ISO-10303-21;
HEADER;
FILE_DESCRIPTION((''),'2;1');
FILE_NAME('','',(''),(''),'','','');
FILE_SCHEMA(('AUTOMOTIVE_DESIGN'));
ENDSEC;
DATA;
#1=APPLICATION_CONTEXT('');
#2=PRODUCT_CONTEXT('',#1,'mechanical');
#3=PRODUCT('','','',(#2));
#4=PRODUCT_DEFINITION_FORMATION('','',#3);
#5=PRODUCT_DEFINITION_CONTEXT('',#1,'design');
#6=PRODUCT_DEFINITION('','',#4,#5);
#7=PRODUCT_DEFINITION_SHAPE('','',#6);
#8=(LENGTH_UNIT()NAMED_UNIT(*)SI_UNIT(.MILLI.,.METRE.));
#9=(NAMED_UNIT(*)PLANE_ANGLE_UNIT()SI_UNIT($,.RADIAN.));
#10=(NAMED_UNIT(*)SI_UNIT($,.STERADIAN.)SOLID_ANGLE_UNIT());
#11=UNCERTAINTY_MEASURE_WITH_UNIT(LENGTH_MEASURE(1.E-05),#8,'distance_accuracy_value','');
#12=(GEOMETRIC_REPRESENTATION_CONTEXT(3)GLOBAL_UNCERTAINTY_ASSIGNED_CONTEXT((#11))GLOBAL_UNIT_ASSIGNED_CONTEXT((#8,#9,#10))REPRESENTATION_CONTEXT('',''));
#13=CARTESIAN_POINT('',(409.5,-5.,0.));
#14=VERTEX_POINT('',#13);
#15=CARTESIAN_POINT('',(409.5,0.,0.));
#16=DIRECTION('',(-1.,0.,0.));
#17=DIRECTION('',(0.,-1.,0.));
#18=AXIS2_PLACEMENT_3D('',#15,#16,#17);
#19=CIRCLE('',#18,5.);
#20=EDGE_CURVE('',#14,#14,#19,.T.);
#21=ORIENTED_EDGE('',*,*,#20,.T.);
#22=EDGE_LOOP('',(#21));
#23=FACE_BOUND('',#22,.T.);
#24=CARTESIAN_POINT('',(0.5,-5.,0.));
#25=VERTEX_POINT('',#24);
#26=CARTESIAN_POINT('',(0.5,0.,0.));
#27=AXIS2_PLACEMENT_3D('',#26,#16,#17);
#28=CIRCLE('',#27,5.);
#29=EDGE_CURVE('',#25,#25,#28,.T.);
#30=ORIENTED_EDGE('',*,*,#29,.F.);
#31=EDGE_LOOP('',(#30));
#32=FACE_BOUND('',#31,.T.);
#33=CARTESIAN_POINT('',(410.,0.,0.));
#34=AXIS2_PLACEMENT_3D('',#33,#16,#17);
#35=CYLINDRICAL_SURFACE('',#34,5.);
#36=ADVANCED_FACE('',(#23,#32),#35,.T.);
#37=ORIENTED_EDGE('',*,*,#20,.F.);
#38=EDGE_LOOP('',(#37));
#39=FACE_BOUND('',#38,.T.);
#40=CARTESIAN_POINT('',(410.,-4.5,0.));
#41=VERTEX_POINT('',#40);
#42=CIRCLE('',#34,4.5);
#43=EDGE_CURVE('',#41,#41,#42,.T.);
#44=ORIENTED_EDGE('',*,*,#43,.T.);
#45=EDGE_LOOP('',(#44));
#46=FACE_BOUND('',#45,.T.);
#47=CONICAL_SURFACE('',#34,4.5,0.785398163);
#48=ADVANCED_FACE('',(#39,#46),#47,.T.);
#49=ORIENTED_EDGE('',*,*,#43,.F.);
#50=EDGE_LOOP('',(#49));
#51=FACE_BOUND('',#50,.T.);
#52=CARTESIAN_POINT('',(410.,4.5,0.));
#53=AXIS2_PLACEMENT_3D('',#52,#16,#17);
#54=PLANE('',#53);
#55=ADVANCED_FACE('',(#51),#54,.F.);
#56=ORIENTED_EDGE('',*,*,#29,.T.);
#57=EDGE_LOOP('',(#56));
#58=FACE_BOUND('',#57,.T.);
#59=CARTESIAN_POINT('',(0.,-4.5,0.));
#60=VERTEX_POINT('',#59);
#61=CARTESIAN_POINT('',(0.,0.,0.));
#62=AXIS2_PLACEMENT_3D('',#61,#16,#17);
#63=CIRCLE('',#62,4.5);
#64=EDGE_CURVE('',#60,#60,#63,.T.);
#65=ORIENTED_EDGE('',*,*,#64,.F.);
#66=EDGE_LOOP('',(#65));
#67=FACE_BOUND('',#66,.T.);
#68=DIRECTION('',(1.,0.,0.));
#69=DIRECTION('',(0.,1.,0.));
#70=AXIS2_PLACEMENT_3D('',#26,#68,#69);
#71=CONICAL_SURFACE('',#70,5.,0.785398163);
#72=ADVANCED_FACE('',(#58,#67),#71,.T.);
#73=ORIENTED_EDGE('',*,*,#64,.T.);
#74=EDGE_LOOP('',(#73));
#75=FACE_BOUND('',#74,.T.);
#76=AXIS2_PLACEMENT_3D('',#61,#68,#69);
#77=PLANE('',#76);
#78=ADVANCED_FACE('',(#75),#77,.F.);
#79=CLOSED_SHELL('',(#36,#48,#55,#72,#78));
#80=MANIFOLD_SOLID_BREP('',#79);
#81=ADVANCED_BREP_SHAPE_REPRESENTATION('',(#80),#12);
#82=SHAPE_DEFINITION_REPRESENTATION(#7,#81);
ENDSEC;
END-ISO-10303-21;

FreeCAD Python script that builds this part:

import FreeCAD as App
import Part
import Sketcher

doc = App.newDocument("Part")
body = doc.addObject("PartDesign::Body", "Body")

sketch1 = body.newObject("Sketcher::SketchObject", "Sketch")
sketch1.AttachmentSupport = (doc.getObject("XY_Plane"), [""])
sketch1.MapMode = "FlatFace"
sketch1.addGeometry(Part.LineSegment(App.Vector(0, 4.5, 0), App.Vector(0, 0, 0)), False)
sketch1.addGeometry(Part.LineSegment(App.Vector(0, 0, 0), App.Vector(410, 0, 0)), False)
sketch1.addGeometry(Part.LineSegment(App.Vector(410, 0, 0), App.Vector(410, 4.5, 0)), False)
sketch1.addGeometry(Part.LineSegment(App.Vector(410, 4.5, 0), App.Vector(409.5, 5, 0)), False)
sketch1.addGeometry(Part.LineSegment(App.Vector(409.5, 5, 0), App.Vector(0.5, 5, 0)), False)
sketch1.addGeometry(Part.LineSegment(App.Vector(0.5, 5, 0), App.Vector(0, 4.5, 0)), False)
sketch1.addConstraint(Sketcher.Constraint("Coincident", 0, 2, 1, 1))
sketch1.addConstraint(Sketcher.Constraint("Coincident", 1, 2, 2, 1))
sketch1.addConstraint(Sketcher.Constraint("Coincident", 2, 2, 3, 1))
sketch1.addConstraint(Sketcher.Constraint("Coincident", 3, 2, 4, 1))
sketch1.addConstraint(Sketcher.Constraint("Coincident", 4, 2, 5, 1))
sketch1.addConstraint(Sketcher.Constraint("Coincident", 5, 2, 0, 1))
sketch1.addConstraint(Sketcher.Constraint("Vertical", 0))
sketch1.addConstraint(Sketcher.Constraint("Horizontal", 1))
sketch1.addConstraint(Sketcher.Constraint("Vertical", 2))
sketch1.addConstraint(Sketcher.Constraint("Horizontal", 4))
sketch1.addConstraint(Sketcher.Constraint("Coincident", 0, 2, -1, 1))
sketch1.addConstraint(Sketcher.Constraint("Perpendicular", 3, 5))
sketch1.addConstraint(Sketcher.Constraint("Horizontal", 2, 2, 5, 2))
sketch1.addConstraint(Sketcher.Constraint("Equal", 3, 5))
sketch1.addConstraint(Sketcher.Constraint("DistanceX", 1, 1, 1, 2, 410.0))
sketch1.addConstraint(Sketcher.Constraint("DistanceX", 4, 2, 4, 1, 409.0))
sketch1.addConstraint(Sketcher.Constraint("DistanceY", 0, 2, 0, 1, 4.5))
revolution = body.newObject("PartDesign::Revolution", "Revolution")
revolution.Profile = sketch1
revolution.ReferenceAxis = (sketch1, ["H_Axis"])
revolution.Angle = 360

doc.recompute()
